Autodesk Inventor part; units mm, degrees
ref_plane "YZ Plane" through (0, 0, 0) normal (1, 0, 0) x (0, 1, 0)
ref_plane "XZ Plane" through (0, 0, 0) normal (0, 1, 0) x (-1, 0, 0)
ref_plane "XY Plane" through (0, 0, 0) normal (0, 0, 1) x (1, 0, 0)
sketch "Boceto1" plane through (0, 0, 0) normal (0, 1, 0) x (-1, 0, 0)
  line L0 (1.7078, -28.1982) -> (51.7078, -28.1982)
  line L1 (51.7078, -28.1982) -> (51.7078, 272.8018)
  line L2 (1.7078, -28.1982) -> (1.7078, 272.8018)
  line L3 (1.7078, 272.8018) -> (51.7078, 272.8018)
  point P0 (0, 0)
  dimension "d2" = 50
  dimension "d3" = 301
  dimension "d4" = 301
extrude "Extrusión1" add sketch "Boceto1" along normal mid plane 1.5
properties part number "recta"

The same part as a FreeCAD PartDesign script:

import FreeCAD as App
import Part
import Sketcher
Q = App.Units.Quantity

doc = App.newDocument("Part")
body = doc.addObject("PartDesign::Body", "Body")

# Sketch on XZ plane
sketch1 = doc.addObject("Sketcher::SketchObject", "Sketch")
body.addObject(sketch1)
sketch1.AttachmentSupport = (doc.XZ_Plane, [""])
sketch1.MapMode = "FlatFace"
sketch1.addGeometry([
    Part.LineSegment(App.Vector(-2, 273, 0), App.Vector(-2, -28, 0)),
    Part.LineSegment(App.Vector(-2, -28, 0), App.Vector(-52, -28, 0)),
    Part.LineSegment(App.Vector(-52, -28, 0), App.Vector(-52, 273, 0)),
    Part.LineSegment(App.Vector(-52, 273, 0), App.Vector(-2, 273, 0)),
], False)
sketch1.addConstraint([
    Sketcher.Constraint("Coincident", 0, 2, 1, 1),
    Sketcher.Constraint("Coincident", 1, 2, 2, 1),
    Sketcher.Constraint("Coincident", 2, 2, 3, 1),
    Sketcher.Constraint("Coincident", 3, 2, 0, 1),
    Sketcher.Constraint("Vertical", 0),
    Sketcher.Constraint("Horizontal", 1),
    Sketcher.Constraint("Vertical", 2),
    Sketcher.Constraint("Horizontal", 3),
    Sketcher.Constraint("DistanceX", 1, 2, 1, 1, Q("50 mm")),
    Sketcher.Constraint("DistanceY", 0, 2, 0, 1, Q("301 mm")),
    Sketcher.Constraint("DistanceX", 0, 2, -1, 1, Q("1.7078 mm")),
    Sketcher.Constraint("DistanceY", 0, 2, -1, 1, Q("28.1982 mm")),
])
pad1 = doc.addObject("PartDesign::Pad", "Pad")
body.addObject(pad1)
pad1.Profile = sketch1
pad1.Length = 1.5
pad1.Midplane = True

doc.recompute()
